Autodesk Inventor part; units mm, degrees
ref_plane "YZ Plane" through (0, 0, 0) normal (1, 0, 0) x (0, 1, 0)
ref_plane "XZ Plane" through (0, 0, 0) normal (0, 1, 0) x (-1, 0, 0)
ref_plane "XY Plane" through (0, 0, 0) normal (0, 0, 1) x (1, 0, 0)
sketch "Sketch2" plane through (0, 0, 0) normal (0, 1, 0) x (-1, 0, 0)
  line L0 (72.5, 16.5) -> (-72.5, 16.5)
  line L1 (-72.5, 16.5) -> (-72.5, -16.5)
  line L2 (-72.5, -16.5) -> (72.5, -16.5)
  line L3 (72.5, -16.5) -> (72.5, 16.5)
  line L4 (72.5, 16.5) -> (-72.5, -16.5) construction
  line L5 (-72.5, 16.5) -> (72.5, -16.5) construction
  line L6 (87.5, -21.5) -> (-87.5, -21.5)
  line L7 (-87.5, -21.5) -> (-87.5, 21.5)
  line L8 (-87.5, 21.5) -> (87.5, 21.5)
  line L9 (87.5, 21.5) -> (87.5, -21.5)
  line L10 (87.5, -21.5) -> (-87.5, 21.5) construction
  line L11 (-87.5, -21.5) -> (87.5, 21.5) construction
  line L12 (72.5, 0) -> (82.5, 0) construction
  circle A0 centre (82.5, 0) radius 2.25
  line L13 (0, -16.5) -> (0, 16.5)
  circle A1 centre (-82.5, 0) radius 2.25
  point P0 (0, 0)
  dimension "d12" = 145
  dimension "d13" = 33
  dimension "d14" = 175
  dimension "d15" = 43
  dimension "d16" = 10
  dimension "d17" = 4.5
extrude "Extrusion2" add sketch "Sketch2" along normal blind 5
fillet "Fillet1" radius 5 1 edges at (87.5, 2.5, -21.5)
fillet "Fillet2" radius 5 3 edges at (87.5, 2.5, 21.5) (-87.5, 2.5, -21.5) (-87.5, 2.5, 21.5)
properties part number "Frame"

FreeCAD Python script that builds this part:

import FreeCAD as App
import Part
import Sketcher

V = App.Vector


def edges_at(feature, points):
    """Names of the edges that pass closest to the given points."""
    edges = feature.Shape.Edges
    near = lambda p: min(range(len(edges)), key=lambda i: edges[i].distToShape(Part.Vertex(*p))[0])
    return sorted({f"Edge{near(p) + 1}" for p in points})

doc = App.newDocument("Part")
body = doc.addObject("PartDesign::Body", "Body")

sketch1 = body.newObject("Sketcher::SketchObject", "Sketch")
sketch1.AttachmentSupport = (doc.getObject("XZ_Plane"), [""])
sketch1.MapMode = "FlatFace"
sketch1.addGeometry([
    Part.LineSegment(V(87.5, -21.5, 0), V(-87.5, -21.5, 0)),
    Part.LineSegment(V(-87.5, -21.5, 0), V(-87.5, 21.5, 0)),
    Part.LineSegment(V(-87.5, 21.5, 0), V(87.5, 21.5, 0)),
    Part.LineSegment(V(87.5, 21.5, 0), V(87.5, -21.5, 0)),
    Part.Circle(V(82.5, 0, 0), V(0, 0, 1), 2.25),
    Part.LineSegment(V(72.5, 16.5, 0), V(-72.5, 16.5, 0)),
    Part.LineSegment(V(-72.5, 16.5, 0), V(-72.5, -16.5, 0)),
    Part.LineSegment(V(-72.5, -16.5, 0), V(72.5, -16.5, 0)),
    Part.LineSegment(V(72.5, -16.5, 0), V(72.5, 16.5, 0)),
    Part.Circle(V(-82.5, 0, 0), V(0, 0, 1), 2.25),
], False)
sketch1.addConstraint([
    Sketcher.Constraint("Coincident", 0, 2, 1, 1),
    Sketcher.Constraint("Coincident", 1, 2, 2, 1),
    Sketcher.Constraint("Coincident", 2, 2, 3, 1),
    Sketcher.Constraint("Coincident", 3, 2, 0, 1),
    Sketcher.Constraint("Coincident", 5, 2, 6, 1),
    Sketcher.Constraint("Coincident", 6, 2, 7, 1),
    Sketcher.Constraint("Coincident", 7, 2, 8, 1),
    Sketcher.Constraint("Coincident", 8, 2, 5, 1),
    Sketcher.Constraint("Horizontal", 0),
    Sketcher.Constraint("Vertical", 1),
    Sketcher.Constraint("Horizontal", 2),
    Sketcher.Constraint("Vertical", 3),
    Sketcher.Constraint("Horizontal", 5),
    Sketcher.Constraint("Vertical", 6),
    Sketcher.Constraint("Horizontal", 7),
    Sketcher.Constraint("Vertical", 8),
    Sketcher.Constraint("Equal", 4, 9),
    Sketcher.Constraint("Symmetric", 4, 3, 9, 3, -1, 1),
    Sketcher.Constraint("Symmetric", 0, 2, 2, 2, -1, 1),
    Sketcher.Constraint("Symmetric", 5, 2, 7, 2, -1, 1),
    Sketcher.Constraint("PointOnObject", 4, 3, -1),
    Sketcher.Constraint("Diameter", 4, 4.5),
    Sketcher.Constraint("DistanceX", 0, 2, 0, 1, 175.0),
    Sketcher.Constraint("DistanceX", 5, 2, 5, 1, 145.0),
    Sketcher.Constraint("DistanceY", 1, 1, 1, 2, 43.0),
    Sketcher.Constraint("DistanceY", 6, 2, 6, 1, 33.0),
    Sketcher.Constraint("DistanceX", 9, 3, 5, 2, 10.0),
])
pad1 = body.newObject("PartDesign::Pad", "Pad")
pad1.Profile = sketch1
pad1.Length = 5
pad1.Reversed = True
doc.recompute()

fillet = body.newObject("PartDesign::Fillet", "Fillet")
fillet.Base = (pad1, edges_at(pad1, [(87.5, 2.5, -21.5)]))
fillet.Radius = 5
doc.recompute()

fillet2 = body.newObject("PartDesign::Fillet", "Fillet001")
fillet2.Base = (fillet, edges_at(fillet, [(87.5, 2.5, 21.5), (-87.5, 2.5, -21.5), (-87.5, 2.5, 21.5)]))
fillet2.Radius = 5

doc.recompute()
